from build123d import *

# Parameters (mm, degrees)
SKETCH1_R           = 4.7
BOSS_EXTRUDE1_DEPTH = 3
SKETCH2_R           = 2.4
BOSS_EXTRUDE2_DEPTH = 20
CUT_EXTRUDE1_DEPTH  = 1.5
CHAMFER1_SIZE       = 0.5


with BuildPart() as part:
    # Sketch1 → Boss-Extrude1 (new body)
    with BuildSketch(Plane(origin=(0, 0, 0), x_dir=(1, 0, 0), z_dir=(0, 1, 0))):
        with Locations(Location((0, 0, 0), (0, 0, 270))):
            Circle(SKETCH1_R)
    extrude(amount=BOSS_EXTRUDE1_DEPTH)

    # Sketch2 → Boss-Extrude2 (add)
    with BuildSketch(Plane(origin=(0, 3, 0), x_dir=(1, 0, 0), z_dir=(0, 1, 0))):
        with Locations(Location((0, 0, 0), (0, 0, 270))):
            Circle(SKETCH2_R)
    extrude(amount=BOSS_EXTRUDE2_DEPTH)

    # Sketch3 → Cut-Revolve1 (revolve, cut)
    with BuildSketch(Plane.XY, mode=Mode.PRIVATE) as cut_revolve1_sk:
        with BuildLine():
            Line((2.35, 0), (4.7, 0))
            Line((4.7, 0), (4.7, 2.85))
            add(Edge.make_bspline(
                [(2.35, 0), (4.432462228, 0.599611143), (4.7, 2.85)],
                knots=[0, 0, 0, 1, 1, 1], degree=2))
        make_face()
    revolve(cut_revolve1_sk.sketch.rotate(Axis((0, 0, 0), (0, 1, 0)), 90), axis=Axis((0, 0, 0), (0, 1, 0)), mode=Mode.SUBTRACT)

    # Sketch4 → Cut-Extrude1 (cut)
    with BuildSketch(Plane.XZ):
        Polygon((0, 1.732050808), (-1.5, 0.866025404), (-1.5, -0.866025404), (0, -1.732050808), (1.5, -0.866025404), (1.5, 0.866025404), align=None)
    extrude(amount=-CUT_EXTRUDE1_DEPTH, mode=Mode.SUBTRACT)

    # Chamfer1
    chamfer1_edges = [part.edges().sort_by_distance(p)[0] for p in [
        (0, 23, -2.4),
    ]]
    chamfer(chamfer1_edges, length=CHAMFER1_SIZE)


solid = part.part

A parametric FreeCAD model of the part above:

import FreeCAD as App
import Part
import Sketcher
Q = App.Units.Quantity


def edges_at(feature, points):
    """Names of the edges that pass closest to the given points."""
    edges = feature.Shape.Edges
    near = lambda p: min(range(len(edges)), key=lambda i: edges[i].distToShape(Part.Vertex(*p))[0])
    return sorted({f"Edge{near(p) + 1}" for p in points})


def add_polygon(sketch, points):
    """Adds a closed chain of lines whose ends are joined by coincident constraints."""
    first, n = sketch.GeometryCount, len(points)
    for a, b in zip(points, points[1:] + points[:1]):
        sketch.addGeometry(Part.LineSegment(App.Vector(*a, 0), App.Vector(*b, 0)), False)
    for i in range(n):
        sketch.addConstraint(Sketcher.Constraint("Coincident", first + i, 2, first + (i + 1) % n, 1))

doc = App.newDocument("Part")
body = doc.addObject("PartDesign::Body", "Body")

sketch1 = doc.addObject("Sketcher::SketchObject", "Sketch")
body.addObject(sketch1)
sketch1.AttachmentSupport = (doc.XZ_Plane, [""])
sketch1.MapMode = "FlatFace"
sketch1.addGeometry(Part.Circle(App.Vector(0, 0, 0), App.Vector(0, 0, 1), 4.7), False)
sketch1.addConstraint([
    Sketcher.Constraint("Coincident", 0, 3, -1, 1),
    Sketcher.Constraint("Diameter", 0, 9.4),
])
pad1 = doc.addObject("PartDesign::Pad", "Pad")
body.addObject(pad1)
pad1.Profile = sketch1
pad1.Length = 3
pad1.Reversed = True

sketch2 = doc.addObject("Sketcher::SketchObject", "Sketch001")
body.addObject(sketch2)
sketch2.AttachmentSupport = (doc.XZ_Plane, [""])
sketch2.MapMode = "FlatFace"
sketch2.AttachmentOffset = App.Placement(App.Vector(0, 0, -3), App.Rotation())
sketch2.addGeometry(Part.Circle(App.Vector(0, 0, 0), App.Vector(0, 0, 1), 2.4), False)
sketch2.addConstraint([
    Sketcher.Constraint("Coincident", 0, 3, -1, 1),
    Sketcher.Constraint("Diameter", 0, 4.8),
])
pad2 = doc.addObject("PartDesign::Pad", "Pad001")
body.addObject(pad2)
pad2.Profile = sketch2
pad2.Length = 20
pad2.Reversed = True

sketch3 = doc.addObject("Sketcher::SketchObject", "Sketch002")
body.addObject(sketch3)
sketch3.AttachmentSupport = (doc.XY_Plane, [""])
sketch3.MapMode = "FlatFace"
sketch3.addGeometry([
    Part.LineSegment(App.Vector(2.35, 0, 0), App.Vector(4.7, 0, 0)),
    Part.LineSegment(App.Vector(4.7, 0, 0), App.Vector(4.7, 2.85, 0)),
    Part.BSplineCurve([App.Vector(2.35, 0, 0), App.Vector(4.432462, 0.599611, 0), App.Vector(4.7, 2.85, 0)], [3, 3], [0, 1], False, 2, [1, 1, 1], False),
], False)
sketch3.addConstraint([
    Sketcher.Constraint("Block", 2),
    Sketcher.Constraint("Coincident", 0, 2, 1, 1),
    Sketcher.Constraint("Coincident", 1, 2, 2, 2),
    Sketcher.Constraint("Coincident", 2, 1, 0, 1),
    Sketcher.Constraint("Horizontal", 0),
    Sketcher.Constraint("Vertical", 1),
])
groove = doc.addObject("PartDesign::Groove", "Groove")
body.addObject(groove)
groove.Profile = sketch3
groove.ReferenceAxis = (sketch3, ["V_Axis"])
groove.Angle = 360

sketch4 = doc.addObject("Sketcher::SketchObject", "Sketch003")
body.addObject(sketch4)
sketch4.AttachmentSupport = (doc.XZ_Plane, [""])
sketch4.MapMode = "FlatFace"
add_polygon(sketch4, [(0, 1.732051), (-1.5, 0.866025), (-1.5, -0.866025), (0, -1.732051), (1.5, -0.866025), (1.5, 0.866025)])
sketch4.addConstraint([
    Sketcher.Constraint("Vertical", 1),
    Sketcher.Constraint("Vertical", 4),
    Sketcher.Constraint("Symmetric", 0, 2, 3, 2, -1, 1),
    Sketcher.Constraint("Symmetric", 2, 2, 5, 2, -1, 1),
    Sketcher.Constraint("PointOnObject", 2, 2, -2),
    Sketcher.Constraint("Parallel", 2, 5),
    Sketcher.Constraint("Horizontal", 1, 2, 3, 2),
    Sketcher.Constraint("Angle", 0, Q("-150 deg")),
    Sketcher.Constraint("DistanceX", 1, 2, 3, 2, 3.0),
    Sketcher.Constraint("DistanceY", 1, 2, 1, 1, 1.732051),
])
pocket1 = doc.addObject("PartDesign::Pocket", "Pocket")
body.addObject(pocket1)
pocket1.Profile = sketch4
pocket1.Length = 1.5
doc.recompute()

chamfer = doc.addObject("PartDesign::Chamfer", "Chamfer")
body.addObject(chamfer)
chamfer.Base = (pocket1, edges_at(pocket1, [(0, 23, -2.4)]))
chamfer.Size = 0.5

doc.recompute()
